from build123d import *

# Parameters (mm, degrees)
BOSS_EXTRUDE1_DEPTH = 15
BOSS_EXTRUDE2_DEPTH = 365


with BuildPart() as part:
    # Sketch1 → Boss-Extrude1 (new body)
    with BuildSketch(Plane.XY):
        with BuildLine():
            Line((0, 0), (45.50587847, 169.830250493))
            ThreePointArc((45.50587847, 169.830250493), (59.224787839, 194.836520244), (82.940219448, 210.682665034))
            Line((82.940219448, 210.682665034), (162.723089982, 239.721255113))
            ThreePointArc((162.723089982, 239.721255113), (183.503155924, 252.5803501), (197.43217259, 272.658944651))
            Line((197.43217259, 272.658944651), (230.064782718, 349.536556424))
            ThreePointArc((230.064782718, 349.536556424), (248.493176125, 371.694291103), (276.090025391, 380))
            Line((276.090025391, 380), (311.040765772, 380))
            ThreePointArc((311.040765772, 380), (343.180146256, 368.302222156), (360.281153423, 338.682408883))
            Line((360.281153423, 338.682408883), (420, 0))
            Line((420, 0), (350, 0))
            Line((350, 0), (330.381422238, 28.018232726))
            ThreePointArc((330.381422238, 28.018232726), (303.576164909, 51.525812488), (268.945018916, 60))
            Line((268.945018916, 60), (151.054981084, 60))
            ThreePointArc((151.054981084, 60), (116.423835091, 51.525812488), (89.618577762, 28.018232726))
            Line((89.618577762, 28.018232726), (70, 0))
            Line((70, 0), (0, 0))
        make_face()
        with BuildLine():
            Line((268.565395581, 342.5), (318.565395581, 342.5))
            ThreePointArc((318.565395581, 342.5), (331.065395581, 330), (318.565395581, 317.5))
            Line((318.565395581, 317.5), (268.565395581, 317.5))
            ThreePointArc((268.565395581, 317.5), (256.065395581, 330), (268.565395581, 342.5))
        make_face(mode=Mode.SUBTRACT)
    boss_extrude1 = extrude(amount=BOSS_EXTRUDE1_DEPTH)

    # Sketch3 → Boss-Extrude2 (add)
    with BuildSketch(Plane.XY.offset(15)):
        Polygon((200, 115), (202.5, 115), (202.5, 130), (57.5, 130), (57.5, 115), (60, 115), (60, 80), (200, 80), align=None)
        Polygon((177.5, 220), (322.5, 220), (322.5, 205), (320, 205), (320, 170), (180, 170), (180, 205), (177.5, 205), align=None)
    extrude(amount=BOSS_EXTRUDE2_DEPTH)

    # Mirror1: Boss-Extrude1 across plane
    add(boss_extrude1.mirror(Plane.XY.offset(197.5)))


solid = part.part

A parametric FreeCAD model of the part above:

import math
import FreeCAD as App
import Part
import Sketcher
from FreeCAD import Vector
Q = App.Units.Quantity

doc = App.newDocument("Part")
body = doc.addObject("PartDesign::Body", "Body")

# Sketch on XY plane
sketch1 = body.newObject("Sketcher::SketchObject", "Sketch")
sketch1.AttachmentSupport = (doc.getObject("XY_Plane"), [""])
sketch1.MapMode = "FlatFace"
sketch1.addGeometry([
    Part.LineSegment(Vector(46, 170, 0), Vector(0, 0, 0)),  # 0
    Part.LineSegment(Vector(0, 0, 0), Vector(70, 0, 0)),  # 1
    Part.LineSegment(Vector(70, 0, 0), Vector(90, 28, 0)),  # 2
    Part.ArcOfCircle(Part.Circle(Vector(151, -15, 0), Vector(0, 0, 1), 75), math.radians(90), math.radians(145)),  # 3
    Part.LineSegment(Vector(151, 60, 0), Vector(269, 60, 0)),  # 4
    Part.ArcOfCircle(Part.Circle(Vector(269, -15, 0), Vector(0, 0, 1), 75), math.radians(35), math.radians(90)),  # 5
    Part.LineSegment(Vector(330, 28, 0), Vector(350, 0, 0)),  # 6
    Part.LineSegment(Vector(350, 0, 0), Vector(420, 0, 0)),  # 7
    Part.LineSegment(Vector(420, 0, 0), Vector(360, 339, 0)),  # 8
    Part.ArcOfCircle(Part.Circle(Vector(311, 330, 0), Vector(0, 0, 1), 50), math.radians(10), math.radians(90)),  # 9
    Part.LineSegment(Vector(311, 380, 0), Vector(276, 380, 0)),  # 10
    Part.ArcOfCircle(Part.Circle(Vector(276, 330, 0), Vector(0, 0, 1), 50), math.radians(90), math.radians(157)),  # 11
    Part.LineSegment(Vector(230, 350, 0), Vector(197, 273, 0)),  # 12
    Part.ArcOfCircle(Part.Circle(Vector(142, 296, 0), Vector(0, 0, 1), 60), math.radians(-70), math.radians(-23)),  # 13
    Part.LineSegment(Vector(163, 240, 0), Vector(83, 211, 0)),  # 14
    Part.ArcOfCircle(Part.Circle(Vector(103, 154, 0), Vector(0, 0, 1), 60), math.radians(110), math.radians(165)),  # 15
    Part.LineSegment(Vector(269, 342, 0), Vector(319, 342, 0)),  # 16
    Part.ArcOfCircle(Part.Circle(Vector(319, 330, 0), Vector(0, 0, 1), 12), math.radians(-90), math.radians(90)),  # 17
    Part.LineSegment(Vector(319, 318, 0), Vector(269, 318, 0)),  # 18
    Part.ArcOfCircle(Part.Circle(Vector(269, 330, 0), Vector(0, 0, 1), 12), math.radians(90), math.radians(270)),  # 19
], False)
sketch1.addConstraint([
    Sketcher.Constraint("Coincident", 0, 2, 1, 1),
    Sketcher.Constraint("Coincident", 1, 2, 2, 1),
    Sketcher.Constraint("Tangent", 2, 2, 3, 2),
    Sketcher.Constraint("Tangent", 3, 1, 4, 1),
    Sketcher.Constraint("Tangent", 4, 2, 5, 2),
    Sketcher.Constraint("Tangent", 5, 1, 6, 1),
    Sketcher.Constraint("Coincident", 6, 2, 7, 1),
    Sketcher.Constraint("Coincident", 7, 2, 8, 1),
    Sketcher.Constraint("Tangent", 8, 2, 9, 1),
    Sketcher.Constraint("Tangent", 9, 2, 10, 1),
    Sketcher.Constraint("Tangent", 10, 2, 11, 1),
    Sketcher.Constraint("Tangent", 11, 2, 12, 1),
    Sketcher.Constraint("Tangent", 12, 2, 13, 2),
    Sketcher.Constraint("Tangent", 13, 1, 14, 1),
    Sketcher.Constraint("Tangent", 14, 2, 15, 1),
    Sketcher.Constraint("Tangent", 15, 2, 0, 1),
    Sketcher.Constraint("Tangent", 16, 2, 17, 2),
    Sketcher.Constraint("Tangent", 17, 1, 18, 1),
    Sketcher.Constraint("Tangent", 18, 2, 19, 2),
    Sketcher.Constraint("Tangent", 19, 1, 16, 1),
    Sketcher.Constraint("Horizontal", 1),
    Sketcher.Constraint("Horizontal", 4),
    Sketcher.Constraint("Horizontal", 7),
    Sketcher.Constraint("Horizontal", 10),
    Sketcher.Constraint("Horizontal", 16),
    Sketcher.Constraint("Horizontal", 18),
    Sketcher.Constraint("Coincident", 0, 2, -1, 1),
    Sketcher.Constraint("Equal", 3, 5),
    Sketcher.Constraint("Equal", 9, 11),
    Sketcher.Constraint("Equal", 13, 15),
    Sketcher.Constraint("PointOnObject", 6, 2, -1),
    Sketcher.Constraint("Horizontal", 11, 3, 17, 3),
    Sketcher.Constraint("Horizontal", 2, 2, 5, 1),
    Sketcher.Constraint("Equal", 1, 7),
    Sketcher.Constraint("Radius", 3, 75.0),
    Sketcher.Constraint("Radius", 9, 50.0),
    Sketcher.Constraint("Radius", 13, 60.0),
    Sketcher.Constraint("Radius", 17, 12.5),
    Sketcher.Constraint("DistanceX", 1, 1, 1, 2, 70.0),
    Sketcher.Constraint("DistanceX", 16, 1, 16, 2, 50.0),
    Sketcher.Constraint("Angle", 0, Q("-105 deg")),
    Sketcher.Constraint("Angle", 2, Q("55 deg")),
    Sketcher.Constraint("Angle", 8, Q("100 deg")),
    Sketcher.Constraint("Angle", 12, Q("-113 deg")),
    Sketcher.Constraint("Angle", 14, Q("-160 deg")),
    Sketcher.Constraint("DistanceY", 3, 3, -1, 1, 15.0),
    Sketcher.Constraint("DistanceY", -1, 1, 9, 3, 330.0),
    Sketcher.Constraint("DistanceX", -1, 1, 6, 2, 350.0),
    Sketcher.Constraint("DistanceX", 10, 2, 10, 1, 34.95074),
    Sketcher.Constraint("DistanceX", 13, 3, 3, 3, 8.8531),
    Sketcher.Constraint("DistanceX", 9, 3, 17, 3, 7.52463),
])
pad1 = body.newObject("PartDesign::Pad", "Pad")
pad1.Profile = sketch1
pad1.Length = 15

# Sketch on XY plane
sketch2 = body.newObject("Sketcher::SketchObject", "Sketch001")
sketch2.AttachmentSupport = (doc.getObject("XY_Plane"), [""])
sketch2.MapMode = "FlatFace"
sketch2.AttachmentOffset = App.Placement(Vector(0, 0, 15), App.Rotation())
sketch2.addGeometry([
    Part.LineSegment(Vector(200, 115, 0), Vector(202.5, 115, 0)),  # 0
    Part.LineSegment(Vector(202.5, 115, 0), Vector(202.5, 130, 0)),  # 1
    Part.LineSegment(Vector(202.5, 130, 0), Vector(57.5, 130, 0)),  # 2
    Part.LineSegment(Vector(57.5, 130, 0), Vector(57.5, 115, 0)),  # 3
    Part.LineSegment(Vector(57.5, 115, 0), Vector(60, 115, 0)),  # 4
    Part.LineSegment(Vector(60, 115, 0), Vector(60, 80, 0)),  # 5
    Part.LineSegment(Vector(60, 80, 0), Vector(200, 80, 0)),  # 6
    Part.LineSegment(Vector(200, 80, 0), Vector(200, 115, 0)),  # 7
    Part.LineSegment(Vector(322.5, 220, 0), Vector(177.5, 220, 0)),  # 8
    Part.LineSegment(Vector(177.5, 220, 0), Vector(177.5, 205, 0)),  # 9
    Part.LineSegment(Vector(177.5, 205, 0), Vector(180, 205, 0)),  # 10
    Part.LineSegment(Vector(180, 205, 0), Vector(180, 170, 0)),  # 11
    Part.LineSegment(Vector(180, 170, 0), Vector(320, 170, 0)),  # 12
    Part.LineSegment(Vector(320, 170, 0), Vector(320, 205, 0)),  # 13
    Part.LineSegment(Vector(320, 205, 0), Vector(322.5, 205, 0)),  # 14
    Part.LineSegment(Vector(322.5, 205, 0), Vector(322.5, 220, 0)),  # 15
], False)
sketch2.addConstraint([
    Sketcher.Constraint("Coincident", 0, 2, 1, 1),
    Sketcher.Constraint("Coincident", 1, 2, 2, 1),
    Sketcher.Constraint("Coincident", 2, 2, 3, 1),
    Sketcher.Constraint("Coincident", 3, 2, 4, 1),
    Sketcher.Constraint("Coincident", 4, 2, 5, 1),
    Sketcher.Constraint("Coincident", 5, 2, 6, 1),
    Sketcher.Constraint("Coincident", 6, 2, 7, 1),
    Sketcher.Constraint("Coincident", 7, 2, 0, 1),
    Sketcher.Constraint("Coincident", 8, 2, 9, 1),
    Sketcher.Constraint("Coincident", 9, 2, 10, 1),
    Sketcher.Constraint("Coincident", 10, 2, 11, 1),
    Sketcher.Constraint("Coincident", 11, 2, 12, 1),
    Sketcher.Constraint("Coincident", 12, 2, 13, 1),
    Sketcher.Constraint("Coincident", 13, 2, 14, 1),
    Sketcher.Constraint("Coincident", 14, 2, 15, 1),
    Sketcher.Constraint("Coincident", 15, 2, 8, 1),
    Sketcher.Constraint("Horizontal", 0),
    Sketcher.Constraint("Vertical", 1),
    Sketcher.Constraint("Horizontal", 2),
    Sketcher.Constraint("Vertical", 3),
    Sketcher.Constraint("Horizontal", 4),
    Sketcher.Constraint("Vertical", 5),
    Sketcher.Constraint("Horizontal", 6),
    Sketcher.Constraint("Vertical", 7),
    Sketcher.Constraint("Horizontal", 8),
    Sketcher.Constraint("Vertical", 9),
    Sketcher.Constraint("Horizontal", 10),
    Sketcher.Constraint("Vertical", 11),
    Sketcher.Constraint("Horizontal", 12),
    Sketcher.Constraint("Vertical", 13),
    Sketcher.Constraint("Horizontal", 14),
    Sketcher.Constraint("Vertical", 15),
    Sketcher.Constraint("Horizontal", 0, 2, 3, 2),
    Sketcher.Constraint("Horizontal", 10, 2, 13, 2),
    Sketcher.Constraint("Equal", 0, 4),
    Sketcher.Constraint("Equal", 2, 8),
    Sketcher.Constraint("Equal", 4, 10),
    Sketcher.Constraint("Equal", 6, 12),
    Sketcher.Constraint("Equal", 3, 9),
    Sketcher.Constraint("Equal", 7, 11),
    Sketcher.Constraint("DistanceX", 2, 2, 2, 1, 145.0),
    Sketcher.Constraint("DistanceX", 6, 1, 6, 2, 140.0),
    Sketcher.Constraint("DistanceY", 1, 1, 1, 2, 15.0),
    Sketcher.Constraint("DistanceY", 5, 2, 5, 1, 35.0),
    Sketcher.Constraint("DistanceY", -1, 1, 0, 2, 115.0),
    Sketcher.Constraint("DistanceX", -1, 1, 4, 2, 60.0),
    Sketcher.Constraint("DistanceY", -1, 1, 8, 2, 220.0),
    Sketcher.Constraint("DistanceX", -1, 1, 10, 2, 180.0),
])
pad2 = body.newObject("PartDesign::Pad", "Pad001")
pad2.Profile = sketch2
pad2.Length = 365
doc.recompute()

datumplane = body.newObject("PartDesign::Plane", "DatumPlane")
datumplane.AttachmentSupport = (doc.getObject("XY_Plane"), [""])
datumplane.MapMode = "FlatFace"
datumplane.AttachmentOffset = App.Placement(Vector(0, 0, 197.5), App.Rotation())
mirrored = body.newObject("PartDesign::Mirrored", "Mirrored")
mirrored.Originals = [pad1]
mirrored.MirrorPlane = (datumplane, [""])
body.Tip = mirrored

doc.recompute()
